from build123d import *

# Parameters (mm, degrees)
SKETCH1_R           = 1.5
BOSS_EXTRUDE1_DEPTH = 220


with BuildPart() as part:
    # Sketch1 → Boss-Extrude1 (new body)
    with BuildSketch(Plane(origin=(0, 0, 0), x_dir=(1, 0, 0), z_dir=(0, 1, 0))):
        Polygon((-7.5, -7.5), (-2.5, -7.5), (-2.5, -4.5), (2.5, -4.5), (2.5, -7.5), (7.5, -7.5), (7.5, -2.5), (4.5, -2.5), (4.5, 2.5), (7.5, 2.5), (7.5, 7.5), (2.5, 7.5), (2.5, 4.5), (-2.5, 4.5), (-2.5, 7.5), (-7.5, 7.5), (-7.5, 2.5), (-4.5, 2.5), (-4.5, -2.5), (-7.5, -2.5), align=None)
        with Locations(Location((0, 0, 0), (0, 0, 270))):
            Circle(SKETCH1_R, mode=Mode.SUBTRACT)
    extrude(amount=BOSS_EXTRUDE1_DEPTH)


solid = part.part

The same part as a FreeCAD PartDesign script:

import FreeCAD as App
import Part
import Sketcher
from FreeCAD import Vector
Q = App.Units.Quantity


def add_polygon(sketch, points):
    """Adds a closed chain of lines whose ends are joined by coincident constraints."""
    first, n = sketch.GeometryCount, len(points)
    for a, b in zip(points, points[1:] + points[:1]):
        sketch.addGeometry(Part.LineSegment(App.Vector(*a, 0), App.Vector(*b, 0)), False)
    for i in range(n):
        sketch.addConstraint(Sketcher.Constraint("Coincident", first + i, 2, first + (i + 1) % n, 1))

doc = App.newDocument("Part")
body = doc.addObject("PartDesign::Body", "Body")

sketch1 = body.newObject("Sketcher::SketchObject", "Sketch")
sketch1.AttachmentSupport = (doc.getObject("XZ_Plane"), [""])
sketch1.MapMode = "FlatFace"
add_polygon(sketch1, [(-7.5, 7.5), (-2.5, 7.5), (-2.5, 4.5), (2.5, 4.5), (2.5, 7.5), (7.5, 7.5), (7.5, 2.5), (4.5, 2.5), (4.5, -2.5), (7.5, -2.5), (7.5, -7.5), (2.5, -7.5), (2.5, -4.5), (-2.5, -4.5), (-2.5, -7.5), (-7.5, -7.5), (-7.5, -2.5), (-4.5, -2.5), (-4.5, 2.5), (-7.5, 2.5)])
sketch1.addGeometry(Part.Circle(Vector(0, 0, 0), Vector(0, 0, 1), 1.5), False)
sketch1.addConstraint(Sketcher.Constraint("Horizontal", 0))
sketch1.addConstraint(Sketcher.Constraint("Vertical", 1))
sketch1.addConstraint(Sketcher.Constraint("Horizontal", 2))
sketch1.addConstraint(Sketcher.Constraint("Vertical", 3))
sketch1.addConstraint(Sketcher.Constraint("Horizontal", 4))
sketch1.addConstraint(Sketcher.Constraint("Vertical", 5))
sketch1.addConstraint(Sketcher.Constraint("Horizontal", 6))
sketch1.addConstraint(Sketcher.Constraint("Vertical", 7))
sketch1.addConstraint(Sketcher.Constraint("Horizontal", 8))
sketch1.addConstraint(Sketcher.Constraint("Vertical", 9))
sketch1.addConstraint(Sketcher.Constraint("Horizontal", 10))
sketch1.addConstraint(Sketcher.Constraint("Vertical", 11))
sketch1.addConstraint(Sketcher.Constraint("Horizontal", 12))
sketch1.addConstraint(Sketcher.Constraint("Vertical", 13))
sketch1.addConstraint(Sketcher.Constraint("Horizontal", 14))
sketch1.addConstraint(Sketcher.Constraint("Vertical", 15))
sketch1.addConstraint(Sketcher.Constraint("Horizontal", 16))
sketch1.addConstraint(Sketcher.Constraint("Vertical", 17))
sketch1.addConstraint(Sketcher.Constraint("Horizontal", 18))
sketch1.addConstraint(Sketcher.Constraint("Vertical", 19))
sketch1.addConstraint(Sketcher.Constraint("Coincident", 20, 3, -1, 1))
sketch1.addConstraint(Sketcher.Constraint("Symmetric", 0, 2, 10, 2, -1, 1))
sketch1.addConstraint(Sketcher.Constraint("Symmetric", 2, 2, 12, 2, -1, 1))
sketch1.addConstraint(Sketcher.Constraint("Symmetric", 4, 2, 14, 2, -1, 1))
sketch1.addConstraint(Sketcher.Constraint("Symmetric", 6, 2, 16, 2, -1, 1))
sketch1.addConstraint(Sketcher.Constraint("Symmetric", 8, 2, 18, 2, -1, 1))
sketch1.addConstraint(Sketcher.Constraint("Symmetric", 0, 2, 3, 2, -2))
sketch1.addConstraint(Sketcher.Constraint("Symmetric", 8, 2, 15, 2, -2))
sketch1.addConstraint(Sketcher.Constraint("Equal", 0, 2))
sketch1.addConstraint(Sketcher.Constraint("Equal", 18, 1))
sketch1.addConstraint(Sketcher.Constraint("Equal", 14, 5))
sketch1.addConstraint(Sketcher.Constraint("Equal", 5, 7))
sketch1.addConstraint(Sketcher.Constraint("Diameter", 20, Q("3 mm")))
sketch1.addConstraint(Sketcher.Constraint("DistanceX", 0, 1, 0, 2, Q("5 mm")))
sketch1.addConstraint(Sketcher.Constraint("DistanceX", 6, 2, 6, 1, Q("3 mm")))
pad1 = body.newObject("PartDesign::Pad", "Pad")
pad1.Profile = sketch1
pad1.Length = 220
pad1.Reversed = True

doc.recompute()
